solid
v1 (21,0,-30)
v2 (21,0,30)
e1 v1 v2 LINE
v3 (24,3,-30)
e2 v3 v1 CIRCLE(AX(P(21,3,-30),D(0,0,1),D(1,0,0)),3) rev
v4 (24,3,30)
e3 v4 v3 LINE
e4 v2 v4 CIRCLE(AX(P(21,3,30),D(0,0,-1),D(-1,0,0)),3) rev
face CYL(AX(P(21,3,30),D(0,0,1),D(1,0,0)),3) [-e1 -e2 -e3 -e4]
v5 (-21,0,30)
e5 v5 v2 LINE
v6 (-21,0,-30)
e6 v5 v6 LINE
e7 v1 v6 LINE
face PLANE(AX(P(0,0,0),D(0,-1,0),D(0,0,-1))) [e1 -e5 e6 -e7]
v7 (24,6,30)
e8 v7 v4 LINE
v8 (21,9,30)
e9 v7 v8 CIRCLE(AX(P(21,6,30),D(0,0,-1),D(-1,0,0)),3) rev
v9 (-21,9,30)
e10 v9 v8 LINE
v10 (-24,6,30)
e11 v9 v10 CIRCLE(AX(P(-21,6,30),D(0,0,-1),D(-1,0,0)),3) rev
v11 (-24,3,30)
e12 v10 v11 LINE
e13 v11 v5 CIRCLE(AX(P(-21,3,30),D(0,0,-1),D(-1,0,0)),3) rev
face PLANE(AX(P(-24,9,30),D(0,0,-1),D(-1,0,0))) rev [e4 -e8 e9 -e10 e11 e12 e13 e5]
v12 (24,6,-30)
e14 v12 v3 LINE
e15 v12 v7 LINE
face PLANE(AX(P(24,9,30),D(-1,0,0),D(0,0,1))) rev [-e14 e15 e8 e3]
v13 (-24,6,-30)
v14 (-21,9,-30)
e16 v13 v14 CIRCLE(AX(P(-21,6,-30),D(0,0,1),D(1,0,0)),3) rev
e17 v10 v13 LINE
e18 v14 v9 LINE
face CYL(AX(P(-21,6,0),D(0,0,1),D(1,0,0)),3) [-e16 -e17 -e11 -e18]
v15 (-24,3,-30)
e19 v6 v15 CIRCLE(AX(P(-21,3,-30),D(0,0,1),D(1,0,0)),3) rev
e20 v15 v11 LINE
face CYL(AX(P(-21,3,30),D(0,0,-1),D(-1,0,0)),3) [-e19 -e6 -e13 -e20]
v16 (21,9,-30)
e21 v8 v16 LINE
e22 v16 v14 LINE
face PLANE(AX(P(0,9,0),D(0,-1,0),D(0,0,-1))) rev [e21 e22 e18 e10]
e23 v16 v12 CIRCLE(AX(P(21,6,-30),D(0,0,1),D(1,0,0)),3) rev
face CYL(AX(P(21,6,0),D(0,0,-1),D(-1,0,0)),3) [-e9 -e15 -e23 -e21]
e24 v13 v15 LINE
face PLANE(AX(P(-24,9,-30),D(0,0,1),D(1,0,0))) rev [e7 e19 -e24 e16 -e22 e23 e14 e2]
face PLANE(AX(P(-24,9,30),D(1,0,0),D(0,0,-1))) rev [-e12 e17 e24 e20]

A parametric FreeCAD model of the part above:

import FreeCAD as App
import Part
import Sketcher
Q = App.Units.Quantity


def edges_at(feature, points):
    """Names of the edges that pass closest to the given points."""
    edges = feature.Shape.Edges
    near = lambda p: min(range(len(edges)), key=lambda i: edges[i].distToShape(Part.Vertex(*p))[0])
    return sorted({f"Edge{near(p) + 1}" for p in points})


def add_polygon(sketch, points):
    """Adds a closed chain of lines whose ends are joined by coincident constraints."""
    first, n = sketch.GeometryCount, len(points)
    for a, b in zip(points, points[1:] + points[:1]):
        sketch.addGeometry(Part.LineSegment(App.Vector(*a, 0), App.Vector(*b, 0)), False)
    for i in range(n):
        sketch.addConstraint(Sketcher.Constraint("Coincident", first + i, 2, first + (i + 1) % n, 1))

doc = App.newDocument("Part")
body = doc.addObject("PartDesign::Body", "Body")

sketch1 = body.newObject("Sketcher::SketchObject", "Sketch")
sketch1.AttachmentSupport = (doc.getObject("XZ_Plane"), [""])
sketch1.MapMode = "FlatFace"
add_polygon(sketch1, [(-24, -30), (-24, 30), (24, 30), (24, -30)])
sketch1.addConstraint([
    Sketcher.Constraint("Vertical", 0),
    Sketcher.Constraint("Horizontal", 1),
    Sketcher.Constraint("Vertical", 2),
    Sketcher.Constraint("Horizontal", 3),
    Sketcher.Constraint("Symmetric", 0, 2, 2, 2, -1, 1),
    Sketcher.Constraint("DistanceX", 1, 1, 1, 2, Q("48 mm")),
    Sketcher.Constraint("DistanceY", 0, 1, 0, 2, Q("60 mm")),
])
pad1 = body.newObject("PartDesign::Pad", "Pad")
pad1.Profile = sketch1
pad1.Length = 9
pad1.Reversed = True
doc.recompute()

fillet = body.newObject("PartDesign::Fillet", "Fillet")
fillet.Base = (pad1, edges_at(pad1, [
    (-24, 9, 0),
    (24, 9, 0),
    (-24, 0, 0),
    (24, 0, 0),
]))
fillet.Radius = 3

doc.recompute()
